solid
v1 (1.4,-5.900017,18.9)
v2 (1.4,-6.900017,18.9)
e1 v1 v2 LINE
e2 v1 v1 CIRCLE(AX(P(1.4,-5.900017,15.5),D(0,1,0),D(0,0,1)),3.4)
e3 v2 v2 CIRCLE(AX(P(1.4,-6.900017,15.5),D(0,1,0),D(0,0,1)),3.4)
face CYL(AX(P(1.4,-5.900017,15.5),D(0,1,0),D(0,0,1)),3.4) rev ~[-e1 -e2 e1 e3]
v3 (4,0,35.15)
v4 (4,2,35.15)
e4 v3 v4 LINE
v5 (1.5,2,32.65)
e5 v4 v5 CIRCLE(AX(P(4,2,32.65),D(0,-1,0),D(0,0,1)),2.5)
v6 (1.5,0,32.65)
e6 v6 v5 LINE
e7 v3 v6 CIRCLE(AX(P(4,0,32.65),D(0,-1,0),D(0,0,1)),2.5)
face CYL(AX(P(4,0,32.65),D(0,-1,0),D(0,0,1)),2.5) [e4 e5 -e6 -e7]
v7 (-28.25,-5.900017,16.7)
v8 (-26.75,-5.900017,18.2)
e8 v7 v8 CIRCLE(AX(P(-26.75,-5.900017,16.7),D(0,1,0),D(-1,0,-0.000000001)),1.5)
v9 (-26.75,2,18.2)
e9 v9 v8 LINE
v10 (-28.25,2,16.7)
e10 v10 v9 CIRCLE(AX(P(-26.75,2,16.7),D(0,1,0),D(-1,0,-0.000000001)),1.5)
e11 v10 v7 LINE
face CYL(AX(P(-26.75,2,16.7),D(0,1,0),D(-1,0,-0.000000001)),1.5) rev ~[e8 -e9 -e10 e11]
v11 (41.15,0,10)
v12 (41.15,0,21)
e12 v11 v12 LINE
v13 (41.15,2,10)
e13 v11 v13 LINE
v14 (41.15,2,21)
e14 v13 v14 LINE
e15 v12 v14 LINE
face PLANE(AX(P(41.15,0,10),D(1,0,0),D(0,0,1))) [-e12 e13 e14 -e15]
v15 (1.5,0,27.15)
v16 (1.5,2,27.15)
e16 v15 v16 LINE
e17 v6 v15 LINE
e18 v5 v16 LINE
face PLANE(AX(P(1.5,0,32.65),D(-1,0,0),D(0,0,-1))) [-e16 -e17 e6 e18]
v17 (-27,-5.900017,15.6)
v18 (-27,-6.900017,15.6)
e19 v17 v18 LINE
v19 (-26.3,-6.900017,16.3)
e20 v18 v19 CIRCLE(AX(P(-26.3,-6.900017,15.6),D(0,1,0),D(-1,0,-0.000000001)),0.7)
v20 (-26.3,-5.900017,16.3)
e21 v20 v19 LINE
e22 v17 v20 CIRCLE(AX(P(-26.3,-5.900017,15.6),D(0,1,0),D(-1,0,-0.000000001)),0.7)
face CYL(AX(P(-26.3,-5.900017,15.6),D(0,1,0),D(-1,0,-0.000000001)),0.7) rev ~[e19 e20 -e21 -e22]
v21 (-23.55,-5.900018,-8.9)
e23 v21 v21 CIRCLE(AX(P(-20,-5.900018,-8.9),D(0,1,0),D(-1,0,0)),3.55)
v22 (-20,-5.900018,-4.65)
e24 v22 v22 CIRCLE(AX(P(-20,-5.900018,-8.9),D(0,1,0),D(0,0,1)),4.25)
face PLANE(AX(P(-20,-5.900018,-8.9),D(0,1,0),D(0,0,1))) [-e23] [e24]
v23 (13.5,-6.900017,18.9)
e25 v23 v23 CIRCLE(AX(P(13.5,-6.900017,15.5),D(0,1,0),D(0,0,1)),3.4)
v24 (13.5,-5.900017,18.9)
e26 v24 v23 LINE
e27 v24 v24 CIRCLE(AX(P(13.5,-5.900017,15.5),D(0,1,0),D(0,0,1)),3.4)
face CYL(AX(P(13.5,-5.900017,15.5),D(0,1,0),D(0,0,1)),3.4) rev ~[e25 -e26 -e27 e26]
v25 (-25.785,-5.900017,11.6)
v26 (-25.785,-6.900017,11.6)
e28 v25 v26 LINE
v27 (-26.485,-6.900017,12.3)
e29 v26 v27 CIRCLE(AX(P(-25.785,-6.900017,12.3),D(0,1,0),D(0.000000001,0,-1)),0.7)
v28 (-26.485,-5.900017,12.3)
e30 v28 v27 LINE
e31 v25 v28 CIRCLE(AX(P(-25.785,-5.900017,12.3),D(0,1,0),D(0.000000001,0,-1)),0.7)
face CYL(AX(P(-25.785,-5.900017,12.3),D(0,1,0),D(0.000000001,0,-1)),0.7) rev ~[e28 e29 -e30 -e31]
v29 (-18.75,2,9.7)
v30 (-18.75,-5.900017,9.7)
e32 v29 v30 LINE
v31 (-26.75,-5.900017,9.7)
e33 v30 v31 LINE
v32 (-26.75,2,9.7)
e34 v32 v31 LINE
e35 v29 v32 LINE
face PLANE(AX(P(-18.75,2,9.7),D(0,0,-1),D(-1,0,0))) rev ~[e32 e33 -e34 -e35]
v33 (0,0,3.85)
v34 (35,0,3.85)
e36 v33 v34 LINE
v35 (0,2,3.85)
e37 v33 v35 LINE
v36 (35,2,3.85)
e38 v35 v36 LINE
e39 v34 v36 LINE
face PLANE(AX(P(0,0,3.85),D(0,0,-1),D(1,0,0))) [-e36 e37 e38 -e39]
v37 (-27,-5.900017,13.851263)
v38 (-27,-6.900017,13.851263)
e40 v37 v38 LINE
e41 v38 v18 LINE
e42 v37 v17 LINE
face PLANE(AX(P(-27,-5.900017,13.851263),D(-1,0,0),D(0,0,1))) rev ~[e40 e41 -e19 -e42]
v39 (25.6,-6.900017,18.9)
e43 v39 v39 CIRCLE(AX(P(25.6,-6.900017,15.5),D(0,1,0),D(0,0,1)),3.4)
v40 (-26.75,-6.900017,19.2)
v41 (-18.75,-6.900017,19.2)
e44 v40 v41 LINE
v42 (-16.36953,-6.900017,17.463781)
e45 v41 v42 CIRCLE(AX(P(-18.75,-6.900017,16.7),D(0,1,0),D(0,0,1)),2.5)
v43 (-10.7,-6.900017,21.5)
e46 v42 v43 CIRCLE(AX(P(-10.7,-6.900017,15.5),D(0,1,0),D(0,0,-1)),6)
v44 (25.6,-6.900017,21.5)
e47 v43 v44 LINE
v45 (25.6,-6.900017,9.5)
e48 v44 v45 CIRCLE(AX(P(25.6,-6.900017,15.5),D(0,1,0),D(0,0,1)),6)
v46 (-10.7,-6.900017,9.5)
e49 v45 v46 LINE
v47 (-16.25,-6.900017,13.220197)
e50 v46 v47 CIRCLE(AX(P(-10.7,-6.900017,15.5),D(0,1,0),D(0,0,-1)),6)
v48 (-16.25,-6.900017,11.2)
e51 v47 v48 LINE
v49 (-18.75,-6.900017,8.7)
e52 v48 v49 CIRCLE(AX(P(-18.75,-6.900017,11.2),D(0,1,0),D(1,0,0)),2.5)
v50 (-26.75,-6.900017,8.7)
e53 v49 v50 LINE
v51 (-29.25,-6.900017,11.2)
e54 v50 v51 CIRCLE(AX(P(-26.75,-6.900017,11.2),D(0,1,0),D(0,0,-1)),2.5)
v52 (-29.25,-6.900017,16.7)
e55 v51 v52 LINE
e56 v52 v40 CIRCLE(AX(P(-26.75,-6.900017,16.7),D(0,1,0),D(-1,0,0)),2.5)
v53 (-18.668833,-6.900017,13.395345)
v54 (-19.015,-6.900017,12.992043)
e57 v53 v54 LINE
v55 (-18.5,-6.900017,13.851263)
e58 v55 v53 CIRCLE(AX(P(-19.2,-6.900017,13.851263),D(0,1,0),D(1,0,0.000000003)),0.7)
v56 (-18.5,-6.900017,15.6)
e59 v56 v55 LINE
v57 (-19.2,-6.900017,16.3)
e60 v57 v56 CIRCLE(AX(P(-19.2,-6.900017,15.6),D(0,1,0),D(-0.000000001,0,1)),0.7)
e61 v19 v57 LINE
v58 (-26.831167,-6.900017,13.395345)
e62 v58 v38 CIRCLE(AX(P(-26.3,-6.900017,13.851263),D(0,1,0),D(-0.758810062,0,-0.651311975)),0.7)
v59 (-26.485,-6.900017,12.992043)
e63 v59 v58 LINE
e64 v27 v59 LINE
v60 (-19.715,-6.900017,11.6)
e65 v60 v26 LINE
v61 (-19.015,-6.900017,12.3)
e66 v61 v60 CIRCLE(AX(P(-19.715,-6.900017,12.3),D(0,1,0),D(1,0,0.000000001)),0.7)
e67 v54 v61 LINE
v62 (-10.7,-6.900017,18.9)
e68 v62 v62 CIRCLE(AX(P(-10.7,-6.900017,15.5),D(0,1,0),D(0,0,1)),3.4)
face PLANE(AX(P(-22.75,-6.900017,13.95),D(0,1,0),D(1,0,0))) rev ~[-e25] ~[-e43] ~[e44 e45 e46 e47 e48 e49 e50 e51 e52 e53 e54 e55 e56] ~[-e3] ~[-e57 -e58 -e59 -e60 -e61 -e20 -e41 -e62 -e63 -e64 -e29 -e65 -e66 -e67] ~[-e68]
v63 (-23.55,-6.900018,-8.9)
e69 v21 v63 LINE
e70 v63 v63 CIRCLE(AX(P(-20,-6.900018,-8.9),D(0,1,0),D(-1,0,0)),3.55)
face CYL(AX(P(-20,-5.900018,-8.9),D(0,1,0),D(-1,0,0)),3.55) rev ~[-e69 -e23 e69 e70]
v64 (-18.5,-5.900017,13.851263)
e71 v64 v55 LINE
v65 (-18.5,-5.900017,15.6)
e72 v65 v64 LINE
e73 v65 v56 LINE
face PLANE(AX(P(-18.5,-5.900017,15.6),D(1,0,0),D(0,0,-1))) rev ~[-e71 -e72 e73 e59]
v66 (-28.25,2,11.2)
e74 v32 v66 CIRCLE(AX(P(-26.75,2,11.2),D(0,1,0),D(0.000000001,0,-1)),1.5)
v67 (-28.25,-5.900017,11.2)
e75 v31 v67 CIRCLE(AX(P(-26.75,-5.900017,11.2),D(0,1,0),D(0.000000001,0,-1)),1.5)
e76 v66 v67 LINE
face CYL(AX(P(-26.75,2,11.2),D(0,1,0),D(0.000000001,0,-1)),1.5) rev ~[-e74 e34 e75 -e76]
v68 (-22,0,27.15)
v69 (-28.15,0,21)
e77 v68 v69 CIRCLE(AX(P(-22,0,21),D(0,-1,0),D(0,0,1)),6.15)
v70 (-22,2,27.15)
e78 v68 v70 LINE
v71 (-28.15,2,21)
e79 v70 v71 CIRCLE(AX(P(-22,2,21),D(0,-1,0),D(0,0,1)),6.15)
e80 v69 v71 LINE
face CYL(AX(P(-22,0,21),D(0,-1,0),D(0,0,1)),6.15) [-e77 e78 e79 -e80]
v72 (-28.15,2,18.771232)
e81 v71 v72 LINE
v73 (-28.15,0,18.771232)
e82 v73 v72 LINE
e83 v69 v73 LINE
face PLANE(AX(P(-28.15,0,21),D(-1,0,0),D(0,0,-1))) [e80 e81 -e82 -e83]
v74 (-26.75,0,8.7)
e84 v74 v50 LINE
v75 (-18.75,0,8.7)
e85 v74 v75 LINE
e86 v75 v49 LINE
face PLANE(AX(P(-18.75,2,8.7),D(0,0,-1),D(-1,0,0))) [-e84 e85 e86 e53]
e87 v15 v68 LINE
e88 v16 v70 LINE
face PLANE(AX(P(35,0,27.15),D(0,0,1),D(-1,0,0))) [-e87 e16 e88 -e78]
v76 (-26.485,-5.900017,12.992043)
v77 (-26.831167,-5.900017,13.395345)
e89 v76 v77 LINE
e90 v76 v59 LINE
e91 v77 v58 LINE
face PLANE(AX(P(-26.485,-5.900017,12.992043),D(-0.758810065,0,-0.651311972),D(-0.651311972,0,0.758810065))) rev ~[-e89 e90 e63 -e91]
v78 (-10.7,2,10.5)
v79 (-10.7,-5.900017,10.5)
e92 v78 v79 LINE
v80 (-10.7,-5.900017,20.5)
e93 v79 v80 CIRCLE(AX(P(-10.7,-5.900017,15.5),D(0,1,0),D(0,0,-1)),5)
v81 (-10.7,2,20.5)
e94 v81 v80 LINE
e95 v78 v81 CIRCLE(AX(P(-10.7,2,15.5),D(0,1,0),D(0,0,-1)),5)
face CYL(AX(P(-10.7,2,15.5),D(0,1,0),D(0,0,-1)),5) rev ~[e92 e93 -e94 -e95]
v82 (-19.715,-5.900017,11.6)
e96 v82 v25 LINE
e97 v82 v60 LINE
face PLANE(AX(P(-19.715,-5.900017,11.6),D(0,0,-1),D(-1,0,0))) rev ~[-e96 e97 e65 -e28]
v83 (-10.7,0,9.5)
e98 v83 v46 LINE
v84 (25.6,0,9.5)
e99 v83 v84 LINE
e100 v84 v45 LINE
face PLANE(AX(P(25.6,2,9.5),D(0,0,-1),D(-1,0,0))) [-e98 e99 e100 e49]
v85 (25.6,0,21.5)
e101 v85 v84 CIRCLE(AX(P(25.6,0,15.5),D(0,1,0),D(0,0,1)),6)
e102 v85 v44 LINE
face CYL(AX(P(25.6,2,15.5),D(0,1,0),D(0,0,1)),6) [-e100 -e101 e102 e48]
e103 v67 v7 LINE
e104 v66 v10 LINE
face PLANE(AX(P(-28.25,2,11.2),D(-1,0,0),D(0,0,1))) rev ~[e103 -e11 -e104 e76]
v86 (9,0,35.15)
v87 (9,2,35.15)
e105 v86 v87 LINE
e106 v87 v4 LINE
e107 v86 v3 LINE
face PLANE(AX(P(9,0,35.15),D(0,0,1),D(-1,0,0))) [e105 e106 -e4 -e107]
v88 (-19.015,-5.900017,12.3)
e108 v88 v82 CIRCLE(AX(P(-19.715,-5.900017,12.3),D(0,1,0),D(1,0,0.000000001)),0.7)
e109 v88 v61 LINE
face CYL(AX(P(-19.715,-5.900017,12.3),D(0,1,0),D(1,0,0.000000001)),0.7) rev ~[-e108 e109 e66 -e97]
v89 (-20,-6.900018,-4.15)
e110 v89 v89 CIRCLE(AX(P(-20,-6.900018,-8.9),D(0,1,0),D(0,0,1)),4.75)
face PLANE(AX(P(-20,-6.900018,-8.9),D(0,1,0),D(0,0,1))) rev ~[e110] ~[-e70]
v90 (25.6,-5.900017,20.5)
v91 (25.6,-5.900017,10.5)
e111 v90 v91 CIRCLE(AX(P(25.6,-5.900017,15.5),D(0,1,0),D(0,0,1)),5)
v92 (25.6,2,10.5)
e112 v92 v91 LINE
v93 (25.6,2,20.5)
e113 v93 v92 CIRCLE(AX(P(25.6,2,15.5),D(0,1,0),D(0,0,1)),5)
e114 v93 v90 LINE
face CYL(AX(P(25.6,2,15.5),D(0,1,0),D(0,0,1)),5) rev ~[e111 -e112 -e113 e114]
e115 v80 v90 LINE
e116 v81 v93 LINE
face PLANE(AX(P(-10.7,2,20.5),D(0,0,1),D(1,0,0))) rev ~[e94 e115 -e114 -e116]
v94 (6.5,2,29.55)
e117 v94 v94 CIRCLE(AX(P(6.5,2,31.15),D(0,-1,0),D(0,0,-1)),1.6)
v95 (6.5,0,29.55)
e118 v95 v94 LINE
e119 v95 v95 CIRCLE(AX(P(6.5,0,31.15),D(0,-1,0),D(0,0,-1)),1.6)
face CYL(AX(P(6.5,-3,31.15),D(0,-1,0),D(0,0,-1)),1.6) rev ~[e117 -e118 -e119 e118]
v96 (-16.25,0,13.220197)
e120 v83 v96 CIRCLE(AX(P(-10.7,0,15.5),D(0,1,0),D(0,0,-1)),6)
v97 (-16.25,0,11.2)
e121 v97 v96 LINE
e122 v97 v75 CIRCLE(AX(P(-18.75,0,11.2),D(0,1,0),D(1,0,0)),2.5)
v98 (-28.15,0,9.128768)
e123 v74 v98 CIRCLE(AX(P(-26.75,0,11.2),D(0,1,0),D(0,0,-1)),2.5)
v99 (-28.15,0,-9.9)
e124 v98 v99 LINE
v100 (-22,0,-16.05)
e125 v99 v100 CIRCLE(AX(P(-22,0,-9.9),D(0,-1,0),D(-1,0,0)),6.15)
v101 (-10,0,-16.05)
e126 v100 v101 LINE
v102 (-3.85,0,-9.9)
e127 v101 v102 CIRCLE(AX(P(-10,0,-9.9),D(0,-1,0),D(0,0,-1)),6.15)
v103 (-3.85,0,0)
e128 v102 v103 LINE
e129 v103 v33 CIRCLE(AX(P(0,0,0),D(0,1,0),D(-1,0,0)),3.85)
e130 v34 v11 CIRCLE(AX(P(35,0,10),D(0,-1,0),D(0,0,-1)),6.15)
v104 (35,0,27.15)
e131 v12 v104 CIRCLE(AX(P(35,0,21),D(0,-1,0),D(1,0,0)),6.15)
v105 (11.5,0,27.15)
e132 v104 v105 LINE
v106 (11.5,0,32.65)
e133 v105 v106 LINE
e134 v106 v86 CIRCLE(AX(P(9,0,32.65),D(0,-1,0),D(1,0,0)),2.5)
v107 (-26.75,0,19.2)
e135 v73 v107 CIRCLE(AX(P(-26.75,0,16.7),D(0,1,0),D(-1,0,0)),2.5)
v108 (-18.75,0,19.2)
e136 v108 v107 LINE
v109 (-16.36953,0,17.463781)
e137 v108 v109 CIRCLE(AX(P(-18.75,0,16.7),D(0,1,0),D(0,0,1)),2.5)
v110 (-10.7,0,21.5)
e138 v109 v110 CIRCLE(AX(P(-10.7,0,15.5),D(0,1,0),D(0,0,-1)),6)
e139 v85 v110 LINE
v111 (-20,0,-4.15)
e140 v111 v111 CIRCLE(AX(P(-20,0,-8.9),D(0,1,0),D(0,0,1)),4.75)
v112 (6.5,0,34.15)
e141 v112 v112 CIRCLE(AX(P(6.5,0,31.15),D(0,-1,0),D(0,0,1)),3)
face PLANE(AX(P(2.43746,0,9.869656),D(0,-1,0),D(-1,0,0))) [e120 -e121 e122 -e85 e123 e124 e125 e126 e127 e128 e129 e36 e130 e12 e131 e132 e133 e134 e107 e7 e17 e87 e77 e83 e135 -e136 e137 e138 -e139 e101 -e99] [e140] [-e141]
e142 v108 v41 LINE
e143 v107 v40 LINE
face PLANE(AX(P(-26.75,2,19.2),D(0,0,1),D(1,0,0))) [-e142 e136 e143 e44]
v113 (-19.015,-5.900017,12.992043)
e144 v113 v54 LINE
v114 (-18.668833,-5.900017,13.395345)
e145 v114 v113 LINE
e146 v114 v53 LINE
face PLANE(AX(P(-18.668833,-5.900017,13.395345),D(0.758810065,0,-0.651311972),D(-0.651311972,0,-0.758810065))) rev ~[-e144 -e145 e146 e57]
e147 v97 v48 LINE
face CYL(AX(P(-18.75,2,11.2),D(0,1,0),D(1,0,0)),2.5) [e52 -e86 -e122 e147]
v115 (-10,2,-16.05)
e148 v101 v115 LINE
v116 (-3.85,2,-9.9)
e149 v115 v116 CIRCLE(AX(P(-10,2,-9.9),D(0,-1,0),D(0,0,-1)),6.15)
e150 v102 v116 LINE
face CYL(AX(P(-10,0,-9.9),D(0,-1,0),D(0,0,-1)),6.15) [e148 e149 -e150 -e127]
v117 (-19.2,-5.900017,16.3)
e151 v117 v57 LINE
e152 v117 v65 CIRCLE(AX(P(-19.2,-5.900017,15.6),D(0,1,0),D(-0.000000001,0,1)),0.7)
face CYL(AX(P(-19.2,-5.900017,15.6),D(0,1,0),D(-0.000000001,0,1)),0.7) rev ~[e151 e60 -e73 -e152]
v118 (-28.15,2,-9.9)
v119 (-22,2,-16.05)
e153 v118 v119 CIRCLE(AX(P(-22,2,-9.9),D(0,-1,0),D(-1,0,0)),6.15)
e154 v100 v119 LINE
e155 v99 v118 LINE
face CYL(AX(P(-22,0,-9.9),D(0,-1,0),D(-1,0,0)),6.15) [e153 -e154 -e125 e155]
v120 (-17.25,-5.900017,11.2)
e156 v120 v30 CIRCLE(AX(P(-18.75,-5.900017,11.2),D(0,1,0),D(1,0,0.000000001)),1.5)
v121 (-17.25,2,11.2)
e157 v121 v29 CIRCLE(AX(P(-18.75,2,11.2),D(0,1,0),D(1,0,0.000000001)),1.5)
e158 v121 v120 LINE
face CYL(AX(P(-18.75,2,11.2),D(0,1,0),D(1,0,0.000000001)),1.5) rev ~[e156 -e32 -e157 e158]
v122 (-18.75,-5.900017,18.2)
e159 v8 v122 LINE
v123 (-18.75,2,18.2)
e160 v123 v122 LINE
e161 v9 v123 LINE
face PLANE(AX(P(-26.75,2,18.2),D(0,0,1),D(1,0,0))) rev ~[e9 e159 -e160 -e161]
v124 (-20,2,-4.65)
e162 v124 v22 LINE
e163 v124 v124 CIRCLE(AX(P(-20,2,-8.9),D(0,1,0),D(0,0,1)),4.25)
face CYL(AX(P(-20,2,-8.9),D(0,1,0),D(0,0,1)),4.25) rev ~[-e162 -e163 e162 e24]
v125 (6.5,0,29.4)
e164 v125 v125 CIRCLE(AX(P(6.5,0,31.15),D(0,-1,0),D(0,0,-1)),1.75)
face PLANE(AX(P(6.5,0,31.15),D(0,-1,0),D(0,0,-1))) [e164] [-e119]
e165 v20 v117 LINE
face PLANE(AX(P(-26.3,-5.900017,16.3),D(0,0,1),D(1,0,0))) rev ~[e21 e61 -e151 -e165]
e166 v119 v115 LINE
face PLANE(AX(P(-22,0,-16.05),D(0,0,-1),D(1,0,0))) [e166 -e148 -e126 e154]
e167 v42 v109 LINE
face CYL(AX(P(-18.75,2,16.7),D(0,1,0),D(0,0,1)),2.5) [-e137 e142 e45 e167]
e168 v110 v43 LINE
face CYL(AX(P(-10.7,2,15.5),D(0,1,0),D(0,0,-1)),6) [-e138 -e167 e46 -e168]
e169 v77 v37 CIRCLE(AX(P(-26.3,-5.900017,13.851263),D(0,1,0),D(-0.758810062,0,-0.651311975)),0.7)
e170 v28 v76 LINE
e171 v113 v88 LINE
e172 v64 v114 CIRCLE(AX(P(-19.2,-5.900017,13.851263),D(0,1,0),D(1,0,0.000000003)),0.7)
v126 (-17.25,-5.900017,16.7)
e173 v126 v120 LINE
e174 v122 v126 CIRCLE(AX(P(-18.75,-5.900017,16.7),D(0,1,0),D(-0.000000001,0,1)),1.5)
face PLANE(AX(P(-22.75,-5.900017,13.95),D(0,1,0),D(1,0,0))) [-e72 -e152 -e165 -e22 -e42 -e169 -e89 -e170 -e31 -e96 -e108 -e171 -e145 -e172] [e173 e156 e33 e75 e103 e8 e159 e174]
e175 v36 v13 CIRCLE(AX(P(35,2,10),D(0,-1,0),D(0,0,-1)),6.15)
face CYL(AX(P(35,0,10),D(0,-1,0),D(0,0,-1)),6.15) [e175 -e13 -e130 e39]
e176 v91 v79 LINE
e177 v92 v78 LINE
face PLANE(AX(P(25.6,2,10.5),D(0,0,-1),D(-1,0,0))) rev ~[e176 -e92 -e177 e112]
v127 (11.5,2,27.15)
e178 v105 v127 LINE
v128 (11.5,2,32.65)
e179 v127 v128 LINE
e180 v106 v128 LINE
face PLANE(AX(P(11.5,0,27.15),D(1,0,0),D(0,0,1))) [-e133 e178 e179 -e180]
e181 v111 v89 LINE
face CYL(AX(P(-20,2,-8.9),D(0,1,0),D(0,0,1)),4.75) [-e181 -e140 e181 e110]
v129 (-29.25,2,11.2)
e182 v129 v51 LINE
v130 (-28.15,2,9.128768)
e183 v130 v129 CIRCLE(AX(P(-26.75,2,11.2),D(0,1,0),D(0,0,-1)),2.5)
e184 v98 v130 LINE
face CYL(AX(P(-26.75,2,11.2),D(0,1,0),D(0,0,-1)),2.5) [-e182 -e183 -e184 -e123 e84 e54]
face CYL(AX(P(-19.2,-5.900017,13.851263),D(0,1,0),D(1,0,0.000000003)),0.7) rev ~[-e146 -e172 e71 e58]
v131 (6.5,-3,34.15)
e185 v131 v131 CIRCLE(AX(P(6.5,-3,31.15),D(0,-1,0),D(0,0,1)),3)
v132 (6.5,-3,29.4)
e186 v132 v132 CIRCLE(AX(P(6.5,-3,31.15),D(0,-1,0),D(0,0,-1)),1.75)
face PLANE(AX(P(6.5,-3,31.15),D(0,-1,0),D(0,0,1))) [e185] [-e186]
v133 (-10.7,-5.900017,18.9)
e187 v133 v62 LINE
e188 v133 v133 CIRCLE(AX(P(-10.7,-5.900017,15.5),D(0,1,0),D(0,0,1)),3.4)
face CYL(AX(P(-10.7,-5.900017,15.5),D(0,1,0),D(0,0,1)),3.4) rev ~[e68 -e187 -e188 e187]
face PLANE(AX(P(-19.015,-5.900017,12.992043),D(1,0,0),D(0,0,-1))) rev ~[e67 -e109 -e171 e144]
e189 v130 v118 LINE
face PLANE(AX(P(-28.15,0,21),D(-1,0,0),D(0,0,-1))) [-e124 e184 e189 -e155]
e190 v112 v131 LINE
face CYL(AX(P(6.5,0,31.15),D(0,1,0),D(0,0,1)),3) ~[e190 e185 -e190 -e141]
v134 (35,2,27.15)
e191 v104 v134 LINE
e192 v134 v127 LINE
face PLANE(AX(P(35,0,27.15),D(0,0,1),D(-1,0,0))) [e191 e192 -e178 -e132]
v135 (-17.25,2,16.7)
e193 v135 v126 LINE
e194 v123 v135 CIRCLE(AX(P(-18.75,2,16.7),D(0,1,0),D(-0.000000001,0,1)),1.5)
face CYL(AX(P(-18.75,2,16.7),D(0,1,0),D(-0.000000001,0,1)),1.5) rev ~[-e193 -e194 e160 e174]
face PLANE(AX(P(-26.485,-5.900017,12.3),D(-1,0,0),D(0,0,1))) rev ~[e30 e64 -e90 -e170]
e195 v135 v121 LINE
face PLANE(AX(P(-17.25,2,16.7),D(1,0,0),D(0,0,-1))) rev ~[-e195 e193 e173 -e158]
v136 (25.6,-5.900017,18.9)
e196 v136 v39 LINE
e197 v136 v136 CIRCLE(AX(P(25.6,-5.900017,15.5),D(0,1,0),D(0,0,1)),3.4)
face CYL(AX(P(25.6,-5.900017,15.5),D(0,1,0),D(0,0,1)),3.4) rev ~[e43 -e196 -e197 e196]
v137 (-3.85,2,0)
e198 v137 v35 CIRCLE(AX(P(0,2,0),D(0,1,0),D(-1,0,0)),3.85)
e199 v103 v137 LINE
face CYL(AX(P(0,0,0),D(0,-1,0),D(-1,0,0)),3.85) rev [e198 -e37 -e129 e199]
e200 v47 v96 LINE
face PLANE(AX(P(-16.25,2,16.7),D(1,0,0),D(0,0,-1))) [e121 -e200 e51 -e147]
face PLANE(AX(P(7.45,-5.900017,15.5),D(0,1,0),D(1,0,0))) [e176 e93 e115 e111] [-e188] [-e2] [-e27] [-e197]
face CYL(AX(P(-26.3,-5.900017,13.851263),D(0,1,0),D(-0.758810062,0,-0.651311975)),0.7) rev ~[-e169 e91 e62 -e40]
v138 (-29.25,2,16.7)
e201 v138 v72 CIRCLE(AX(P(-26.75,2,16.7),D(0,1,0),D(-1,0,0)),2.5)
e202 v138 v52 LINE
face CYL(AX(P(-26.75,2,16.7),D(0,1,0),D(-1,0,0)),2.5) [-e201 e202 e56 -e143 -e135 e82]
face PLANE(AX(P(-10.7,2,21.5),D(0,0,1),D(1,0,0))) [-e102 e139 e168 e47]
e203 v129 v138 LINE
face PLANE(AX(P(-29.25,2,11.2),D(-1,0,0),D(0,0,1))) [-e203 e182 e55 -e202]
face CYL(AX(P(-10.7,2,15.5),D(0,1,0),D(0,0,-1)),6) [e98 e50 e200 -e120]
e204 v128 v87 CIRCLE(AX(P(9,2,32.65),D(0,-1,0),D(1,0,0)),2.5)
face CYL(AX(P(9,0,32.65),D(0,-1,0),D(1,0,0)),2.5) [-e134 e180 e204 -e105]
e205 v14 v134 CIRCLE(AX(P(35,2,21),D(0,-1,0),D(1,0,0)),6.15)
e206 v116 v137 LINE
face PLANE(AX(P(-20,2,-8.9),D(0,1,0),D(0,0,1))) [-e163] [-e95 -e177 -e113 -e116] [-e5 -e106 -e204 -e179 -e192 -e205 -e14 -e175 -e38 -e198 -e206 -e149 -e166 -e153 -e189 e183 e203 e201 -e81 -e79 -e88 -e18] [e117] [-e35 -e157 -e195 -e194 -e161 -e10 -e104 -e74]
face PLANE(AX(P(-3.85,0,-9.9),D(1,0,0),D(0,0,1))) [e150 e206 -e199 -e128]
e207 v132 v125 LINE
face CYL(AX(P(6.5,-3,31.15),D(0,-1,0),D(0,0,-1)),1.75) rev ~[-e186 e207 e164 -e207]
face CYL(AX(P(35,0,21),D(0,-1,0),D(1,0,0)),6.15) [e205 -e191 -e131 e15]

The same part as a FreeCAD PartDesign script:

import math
import FreeCAD as App
import Part
import Sketcher
Q = App.Units.Quantity

doc = App.newDocument("Part")
params = doc.addObject("Spreadsheet::Sheet", "Params")
for row, (alias, value) in enumerate([
    ("sketch1_width", "57 mm"),
    ("sketch1_width2", "35 mm"),
    ("sketch1_width3", "12 mm"),
    ("sketch1_height", "11 mm"),
    ("sketch1_radius", "6.15 mm"),
    ("pad1_length", "2 mm"),
    ("sketch2_radius", "6 mm"),
    ("sketch2_width", "36.3 mm"),
    ("pad2_length", "8.900017 mm"),
    ("sketch3_radius", "2.5 mm"),
    ("sketch3_width", "8 mm"),
    ("sketch3_height", "5.5 mm"),
    ("pad3_length", "8.900017 mm"),
    ("sketch4_radius", "5 mm"),
    ("sketch4_width", "36.3 mm"),
    ("pocket1_length", "7.900017 mm"),
    ("sketch5_radius", "1.5 mm"),
    ("sketch5_width", "8 mm"),
    ("sketch5_height", "5.5 mm"),
    ("pocket2_length", "7.900017 mm"),
    ("sketch6_diameter", "9.5 mm"),
    ("pad4_length", "8.900018 mm"),
    ("sketch7_diameter", "8.5 mm"),
    ("pocket3_length", "7.900018 mm"),
    ("sketch8_diameter", "6.8 mm"),
    ("sketch9_diameter", "7.1 mm"),
    ("sketch10_radius", "0.7 mm"),
    ("sketch10_width", "7.1 mm"),
    ("sketch10_width2", "6.07 mm"),
    ("sketch11_radius", "2.5 mm"),
    ("sketch11_width", "10 mm"),
    ("sketch11_height", "5.5 mm"),
    ("pad5_length", "2 mm"),
    ("sketch12_diameter", "6 mm"),
    ("pad6_length", "3 mm"),
    ("sketch13_diameter", "3.2 mm"),
    ("sketch14_diameter", "3.5 mm"),
    ("pocket8_length", "3 mm"),
], start=1):
    params.set(f"A{row}", alias)
    params.set(f"B{row}", "=" + value)
    params.setAlias(f"B{row}", alias)

body = doc.addObject("PartDesign::Body", "Body")

sketch1 = body.newObject("Sketcher::SketchObject", "Sketch")
sketch1.AttachmentSupport = (doc.getObject("XZ_Plane"), [""])
sketch1.MapMode = "FlatFace"
sketch1.addGeometry([
    Part.LineSegment(App.Vector(-22, 27.15, 0), App.Vector(35, 27.15, 0)),
    Part.ArcOfCircle(Part.Circle(App.Vector(35, 21, 0), App.Vector(0, 0, 1), 6.15), math.radians(0), math.radians(90)),
    Part.LineSegment(App.Vector(41.15, 21, 0), App.Vector(41.15, 10, 0)),
    Part.ArcOfCircle(Part.Circle(App.Vector(35, 10, 0), App.Vector(0, 0, 1), 6.15), math.radians(-90), math.radians(0)),
    Part.LineSegment(App.Vector(35, 3.85, 0), App.Vector(0, 3.85, 0)),
    Part.ArcOfCircle(Part.Circle(App.Vector(0, 0, 0), App.Vector(0, 0, 1), 3.85), math.radians(90), math.radians(180)),
    Part.LineSegment(App.Vector(-3.85, 0, 0), App.Vector(-3.85, -9.9, 0)),
    Part.ArcOfCircle(Part.Circle(App.Vector(-10, -9.9, 0), App.Vector(0, 0, 1), 6.15), math.radians(-90), math.radians(0)),
    Part.LineSegment(App.Vector(-10, -16.05, 0), App.Vector(-22, -16.05, 0)),
    Part.ArcOfCircle(Part.Circle(App.Vector(-22, -9.9, 0), App.Vector(0, 0, 1), 6.15), math.radians(-180), math.radians(-90)),
    Part.LineSegment(App.Vector(-28.15, -9.9, 0), App.Vector(-28.15, 21, 0)),
    Part.ArcOfCircle(Part.Circle(App.Vector(-22, 21, 0), App.Vector(0, 0, 1), 6.15), math.radians(90), math.radians(180)),
], False)
sketch1.addConstraint([
    Sketcher.Constraint("Tangent", 0, 2, 1, 2),
    Sketcher.Constraint("Tangent", 1, 1, 2, 1),
    Sketcher.Constraint("Tangent", 2, 2, 3, 2),
    Sketcher.Constraint("Tangent", 3, 1, 4, 1),
    Sketcher.Constraint("Tangent", 4, 2, 5, 1),
    Sketcher.Constraint("Tangent", 5, 2, 6, 1),
    Sketcher.Constraint("Tangent", 6, 2, 7, 2),
    Sketcher.Constraint("Tangent", 7, 1, 8, 1),
    Sketcher.Constraint("Tangent", 8, 2, 9, 2),
    Sketcher.Constraint("Tangent", 9, 1, 10, 1),
    Sketcher.Constraint("Tangent", 10, 2, 11, 2),
    Sketcher.Constraint("Tangent", 11, 1, 0, 1),
    Sketcher.Constraint("Horizontal", 0),
    Sketcher.Constraint("Vertical", 2),
    Sketcher.Constraint("Horizontal", 4),
    Sketcher.Constraint("Vertical", 6),
    Sketcher.Constraint("Horizontal", 8),
    Sketcher.Constraint("Vertical", 10),
    Sketcher.Constraint("Coincident", 5, 3, -1, 1),
    Sketcher.Constraint("Equal", 1, 3),
    Sketcher.Constraint("Equal", 3, 7),
    Sketcher.Constraint("Equal", 7, 9),
    Sketcher.Constraint("Equal", 9, 11),
    Sketcher.Constraint("DistanceX", 0, 1, 0, 2, Q("57 mm")),
    Sketcher.Constraint("DistanceX", 4, 2, 4, 1, Q("35 mm")),
    Sketcher.Constraint("DistanceX", 8, 2, 8, 1, Q("12 mm")),
    Sketcher.Constraint("DistanceY", 2, 2, 2, 1, Q("11 mm")),
    Sketcher.Constraint("Radius", 1, Q("6.15 mm")),
    Sketcher.Constraint("DistanceY", 6, 2, 6, 1, Q("9.9 mm")),
])
sketch1.setExpression("Constraints[23]", "Params.sketch1_width")
sketch1.setExpression("Constraints[24]", "Params.sketch1_width2")
sketch1.setExpression("Constraints[25]", "Params.sketch1_width3")
sketch1.setExpression("Constraints[26]", "Params.sketch1_height")
sketch1.setExpression("Constraints[27]", "Params.sketch1_radius")
pad1 = body.newObject("PartDesign::Pad", "Pad")
pad1.Profile = sketch1
pad1.setExpression("Length", "Params.pad1_length")
pad1.Reversed = True

sketch2 = body.newObject("Sketcher::SketchObject", "Sketch001")
sketch2.AttachmentSupport = (doc.getObject("XZ_Plane"), [""])
sketch2.MapMode = "FlatFace"
sketch2.AttachmentOffset = App.Placement(App.Vector(0, 0, -2), App.Rotation())
sketch2.addGeometry([
    Part.LineSegment(App.Vector(-10.7, 21.5, 0), App.Vector(25.6, 21.5, 0)),
    Part.ArcOfCircle(Part.Circle(App.Vector(25.6, 15.5, 0), App.Vector(0, 0, 1), 6), math.radians(-90), math.radians(90)),
    Part.LineSegment(App.Vector(25.6, 9.5, 0), App.Vector(-10.7, 9.5, 0)),
    Part.ArcOfCircle(Part.Circle(App.Vector(-10.7, 15.5, 0), App.Vector(0, 0, 1), 6), math.radians(90), math.radians(270)),
], False)
sketch2.addConstraint([
    Sketcher.Constraint("Tangent", 0, 2, 1, 2),
    Sketcher.Constraint("Tangent", 1, 1, 2, 1),
    Sketcher.Constraint("Tangent", 2, 2, 3, 2),
    Sketcher.Constraint("Tangent", 3, 1, 0, 1),
    Sketcher.Constraint("Horizontal", 0),
    Sketcher.Constraint("Horizontal", 2),
    Sketcher.Constraint("Radius", 1, Q("6 mm")),
    Sketcher.Constraint("DistanceX", 0, 1, 0, 2, Q("36.3 mm")),
    Sketcher.Constraint("DistanceX", -1, 1, 1, 3, Q("25.6 mm")),
    Sketcher.Constraint("DistanceY", -1, 1, 1, 3, Q("15.5 mm")),
])
sketch2.setExpression("Constraints[6]", "Params.sketch2_radius")
sketch2.setExpression("Constraints[7]", "Params.sketch2_width")
pad2 = body.newObject("PartDesign::Pad", "Pad001")
pad2.Profile = sketch2
pad2.setExpression("Length", "Params.pad2_length")

sketch3 = body.newObject("Sketcher::SketchObject", "Sketch002")
sketch3.AttachmentSupport = (doc.getObject("XZ_Plane"), [""])
sketch3.MapMode = "FlatFace"
sketch3.AttachmentOffset = App.Placement(App.Vector(0, 0, -2), App.Rotation())
sketch3.addGeometry([
    Part.LineSegment(App.Vector(-26.75, 19.2, 0), App.Vector(-18.75, 19.2, 0)),
    Part.ArcOfCircle(Part.Circle(App.Vector(-18.75, 16.7, 0), App.Vector(0, 0, 1), 2.5), math.radians(0), math.radians(90)),
    Part.LineSegment(App.Vector(-16.25, 16.7, 0), App.Vector(-16.25, 11.2, 0)),
    Part.ArcOfCircle(Part.Circle(App.Vector(-18.75, 11.2, 0), App.Vector(0, 0, 1), 2.5), math.radians(-90), math.radians(0)),
    Part.LineSegment(App.Vector(-18.75, 8.7, 0), App.Vector(-26.75, 8.7, 0)),
    Part.ArcOfCircle(Part.Circle(App.Vector(-26.75, 11.2, 0), App.Vector(0, 0, 1), 2.5), math.radians(180), math.radians(270)),
    Part.LineSegment(App.Vector(-29.25, 11.2, 0), App.Vector(-29.25, 16.7, 0)),
    Part.ArcOfCircle(Part.Circle(App.Vector(-26.75, 16.7, 0), App.Vector(0, 0, 1), 2.5), math.radians(90), math.radians(180)),
], False)
sketch3.addConstraint([
    Sketcher.Constraint("Tangent", 0, 2, 1, 2),
    Sketcher.Constraint("Tangent", 1, 1, 2, 1),
    Sketcher.Constraint("Tangent", 2, 2, 3, 2),
    Sketcher.Constraint("Tangent", 3, 1, 4, 1),
    Sketcher.Constraint("Tangent", 4, 2, 5, 2),
    Sketcher.Constraint("Tangent", 5, 1, 6, 1),
    Sketcher.Constraint("Tangent", 6, 2, 7, 2),
    Sketcher.Constraint("Tangent", 7, 1, 0, 1),
    Sketcher.Constraint("Horizontal", 0),
    Sketcher.Constraint("Vertical", 2),
    Sketcher.Constraint("Horizontal", 4),
    Sketcher.Constraint("Vertical", 6),
    Sketcher.Constraint("Equal", 1, 3),
    Sketcher.Constraint("Equal", 3, 5),
    Sketcher.Constraint("Equal", 5, 7),
    Sketcher.Constraint("Radius", 1, Q("2.5 mm")),
    Sketcher.Constraint("DistanceX", 0, 1, 0, 2, Q("8 mm")),
    Sketcher.Constraint("DistanceY", 2, 2, 2, 1, Q("5.5 mm")),
    Sketcher.Constraint("DistanceY", -1, 1, 1, 3, Q("16.7 mm")),
    Sketcher.Constraint("DistanceX", 1, 3, -1, 1, Q("18.75 mm")),
])
sketch3.setExpression("Constraints[15]", "Params.sketch3_radius")
sketch3.setExpression("Constraints[16]", "Params.sketch3_width")
sketch3.setExpression("Constraints[17]", "Params.sketch3_height")
pad3 = body.newObject("PartDesign::Pad", "Pad002")
pad3.Profile = sketch3
pad3.setExpression("Length", "Params.pad3_length")

sketch4 = body.newObject("Sketcher::SketchObject", "Sketch003")
sketch4.AttachmentSupport = (doc.getObject("XZ_Plane"), [""])
sketch4.MapMode = "FlatFace"
sketch4.AttachmentOffset = App.Placement(App.Vector(0, 0, -2), App.Rotation())
sketch4.addGeometry([
    Part.LineSegment(App.Vector(25.6, 10.5, 0), App.Vector(-10.7, 10.5, 0)),
    Part.ArcOfCircle(Part.Circle(App.Vector(-10.7, 15.5, 0), App.Vector(0, 0, 1), 5), math.radians(90), math.radians(270)),
    Part.LineSegment(App.Vector(-10.7, 20.5, 0), App.Vector(25.6, 20.5, 0)),
    Part.ArcOfCircle(Part.Circle(App.Vector(25.6, 15.5, 0), App.Vector(0, 0, 1), 5), math.radians(-90), math.radians(90)),
], False)
sketch4.addConstraint([
    Sketcher.Constraint("Tangent", 0, 2, 1, 2),
    Sketcher.Constraint("Tangent", 1, 1, 2, 1),
    Sketcher.Constraint("Tangent", 2, 2, 3, 2),
    Sketcher.Constraint("Tangent", 3, 1, 0, 1),
    Sketcher.Constraint("Horizontal", 0),
    Sketcher.Constraint("Horizontal", 2),
    Sketcher.Constraint("Radius", 1, Q("5 mm")),
    Sketcher.Constraint("DistanceX", 0, 2, 0, 1, Q("36.3 mm")),
    Sketcher.Constraint("DistanceX", 1, 3, -1, 1, Q("10.7 mm")),
    Sketcher.Constraint("DistanceY", -1, 1, 1, 3, Q("15.5 mm")),
])
sketch4.setExpression("Constraints[6]", "Params.sketch4_radius")
sketch4.setExpression("Constraints[7]", "Params.sketch4_width")
pocket1 = body.newObject("PartDesign::Pocket", "Pocket")
pocket1.Profile = sketch4
pocket1.setExpression("Length", "Params.pocket1_length")
pocket1.Reversed = True

sketch5 = body.newObject("Sketcher::SketchObject", "Sketch004")
sketch5.AttachmentSupport = (doc.getObject("XZ_Plane"), [""])
sketch5.MapMode = "FlatFace"
sketch5.AttachmentOffset = App.Placement(App.Vector(0, 0, -2), App.Rotation())
sketch5.addGeometry([
    Part.LineSegment(App.Vector(-17.25, 16.7, 0), App.Vector(-17.25, 11.2, 0)),
    Part.ArcOfCircle(Part.Circle(App.Vector(-18.75, 11.2, 0), App.Vector(0, 0, 1), 1.5), math.radians(-90), math.radians(0)),
    Part.LineSegment(App.Vector(-18.75, 9.7, 0), App.Vector(-26.75, 9.7, 0)),
    Part.ArcOfCircle(Part.Circle(App.Vector(-26.75, 11.2, 0), App.Vector(0, 0, 1), 1.5), math.radians(180), math.radians(270)),
    Part.LineSegment(App.Vector(-28.25, 11.2, 0), App.Vector(-28.25, 16.7, 0)),
    Part.ArcOfCircle(Part.Circle(App.Vector(-26.75, 16.7, 0), App.Vector(0, 0, 1), 1.5), math.radians(90), math.radians(180)),
    Part.LineSegment(App.Vector(-26.75, 18.2, 0), App.Vector(-18.75, 18.2, 0)),
    Part.ArcOfCircle(Part.Circle(App.Vector(-18.75, 16.7, 0), App.Vector(0, 0, 1), 1.5), math.radians(0), math.radians(90)),
], False)
sketch5.addConstraint([
    Sketcher.Constraint("Tangent", 0, 2, 1, 2),
    Sketcher.Constraint("Tangent", 1, 1, 2, 1),
    Sketcher.Constraint("Tangent", 2, 2, 3, 2),
    Sketcher.Constraint("Tangent", 3, 1, 4, 1),
    Sketcher.Constraint("Tangent", 4, 2, 5, 2),
    Sketcher.Constraint("Tangent", 5, 1, 6, 1),
    Sketcher.Constraint("Tangent", 6, 2, 7, 2),
    Sketcher.Constraint("Tangent", 7, 1, 0, 1),
    Sketcher.Constraint("Vertical", 0),
    Sketcher.Constraint("Horizontal", 2),
    Sketcher.Constraint("Vertical", 4),
    Sketcher.Constraint("Horizontal", 6),
    Sketcher.Constraint("Equal", 1, 3),
    Sketcher.Constraint("Equal", 3, 5),
    Sketcher.Constraint("Equal", 5, 7),
    Sketcher.Constraint("Radius", 1, Q("1.5 mm")),
    Sketcher.Constraint("DistanceX", 2, 2, 2, 1, Q("8 mm")),
    Sketcher.Constraint("DistanceY", 0, 2, 0, 1, Q("5.5 mm")),
    Sketcher.Constraint("DistanceY", -1, 1, 1, 3, Q("11.2 mm")),
    Sketcher.Constraint("DistanceX", 1, 3, -1, 1, Q("18.75 mm")),
])
sketch5.setExpression("Constraints[15]", "Params.sketch5_radius")
sketch5.setExpression("Constraints[16]", "Params.sketch5_width")
sketch5.setExpression("Constraints[17]", "Params.sketch5_height")
pocket2 = body.newObject("PartDesign::Pocket", "Pocket001")
pocket2.Profile = sketch5
pocket2.setExpression("Length", "Params.pocket2_length")
pocket2.Reversed = True

sketch6 = body.newObject("Sketcher::SketchObject", "Sketch005")
sketch6.AttachmentSupport = (doc.getObject("XZ_Plane"), [""])
sketch6.MapMode = "FlatFace"
sketch6.AttachmentOffset = App.Placement(App.Vector(0, 0, -2), App.Rotation())
sketch6.addGeometry(Part.Circle(App.Vector(-20, -8.9, 0), App.Vector(0, 0, 1), 4.75), False)
sketch6.addConstraint([
    Sketcher.Constraint("Diameter", 0, Q("9.5 mm")),
    Sketcher.Constraint("DistanceX", 0, 3, -1, 1, Q("20 mm")),
    Sketcher.Constraint("DistanceY", 0, 3, -1, 1, Q("8.9 mm")),
])
sketch6.setExpression("Constraints[0]", "Params.sketch6_diameter")
pad4 = body.newObject("PartDesign::Pad", "Pad003")
pad4.Profile = sketch6
pad4.setExpression("Length", "Params.pad4_length")

sketch7 = body.newObject("Sketcher::SketchObject", "Sketch006")
sketch7.AttachmentSupport = (doc.getObject("XZ_Plane"), [""])
sketch7.MapMode = "FlatFace"
sketch7.AttachmentOffset = App.Placement(App.Vector(0, 0, -2), App.Rotation())
sketch7.addGeometry(Part.Circle(App.Vector(-20, -8.9, 0), App.Vector(0, 0, 1), 4.25), False)
sketch7.addConstraint([
    Sketcher.Constraint("Diameter", 0, Q("8.5 mm")),
    Sketcher.Constraint("DistanceX", 0, 3, -1, 1, Q("20 mm")),
    Sketcher.Constraint("DistanceY", 0, 3, -1, 1, Q("8.9 mm")),
])
sketch7.setExpression("Constraints[0]", "Params.sketch7_diameter")
pocket3 = body.newObject("PartDesign::Pocket", "Pocket002")
pocket3.Profile = sketch7
pocket3.setExpression("Length", "Params.pocket3_length")
pocket3.Reversed = True

sketch8 = body.newObject("Sketcher::SketchObject", "Sketch007")
sketch8.AttachmentSupport = (doc.getObject("XZ_Plane"), [""])
sketch8.MapMode = "FlatFace"
sketch8.AttachmentOffset = App.Placement(App.Vector(0, 0, 5.900017), App.Rotation())
sketch8.addGeometry([
    Part.Circle(App.Vector(-10.7, 15.5, 0), App.Vector(0, 0, 1), 3.4),
    Part.Circle(App.Vector(1.4, 15.5, 0), App.Vector(0, 0, 1), 3.4),
    Part.Circle(App.Vector(13.5, 15.5, 0), App.Vector(0, 0, 1), 3.4),
    Part.Circle(App.Vector(25.6, 15.5, 0), App.Vector(0, 0, 1), 3.4),
], False)
sketch8.addConstraint([
    Sketcher.Constraint("Equal", 0, 1),
    Sketcher.Constraint("Equal", 1, 2),
    Sketcher.Constraint("Equal", 2, 3),
    Sketcher.Constraint("Horizontal", 0, 3, 1, 3),
    Sketcher.Constraint("Horizontal", 1, 3, 2, 3),
    Sketcher.Constraint("Horizontal", 2, 3, 3, 3),
    Sketcher.Constraint("Diameter", 0, Q("6.8 mm")),
    Sketcher.Constraint("DistanceX", 0, 3, -1, 1, Q("10.7 mm")),
    Sketcher.Constraint("DistanceY", -1, 1, 0, 3, Q("15.5 mm")),
    Sketcher.Constraint("DistanceX", -1, 1, 1, 3, Q("1.4 mm")),
    Sketcher.Constraint("DistanceX", -1, 1, 2, 3, Q("13.5 mm")),
    Sketcher.Constraint("DistanceX", -1, 1, 3, 3, Q("25.6 mm")),
])
sketch8.setExpression("Constraints[6]", "Params.sketch8_diameter")
pocket4 = body.newObject("PartDesign::Pocket", "Pocket003")
pocket4.Profile = sketch8
pocket4.Type = "ThroughAll"
pocket4.Reversed = True

sketch9 = body.newObject("Sketcher::SketchObject", "Sketch008")
sketch9.AttachmentSupport = (doc.getObject("XZ_Plane"), [""])
sketch9.MapMode = "FlatFace"
sketch9.AttachmentOffset = App.Placement(App.Vector(0, 0, 5.900018), App.Rotation())
sketch9.addGeometry(Part.Circle(App.Vector(-20, -8.9, 0), App.Vector(0, 0, 1), 3.55), False)
sketch9.addConstraint([
    Sketcher.Constraint("Diameter", 0, Q("7.1 mm")),
    Sketcher.Constraint("DistanceX", 0, 3, -1, 1, Q("20 mm")),
    Sketcher.Constraint("DistanceY", 0, 3, -1, 1, Q("8.9 mm")),
])
sketch9.setExpression("Constraints[0]", "Params.sketch9_diameter")
pocket5 = body.newObject("PartDesign::Pocket", "Pocket004")
pocket5.Profile = sketch9
pocket5.Type = "ThroughAll"
pocket5.Reversed = True

sketch10 = body.newObject("Sketcher::SketchObject", "Sketch009")
sketch10.AttachmentSupport = (doc.getObject("XZ_Plane"), [""])
sketch10.MapMode = "FlatFace"
sketch10.AttachmentOffset = App.Placement(App.Vector(0, 0, 5.900017), App.Rotation())
sketch10.addGeometry([
    Part.LineSegment(App.Vector(-27, 13.851263, 0), App.Vector(-27, 15.6, 0)),
    Part.ArcOfCircle(Part.Circle(App.Vector(-26.3, 15.6, 0), App.Vector(0, 0, 1), 0.7), math.radians(90), math.radians(180)),
    Part.LineSegment(App.Vector(-26.3, 16.3, 0), App.Vector(-19.2, 16.3, 0)),
    Part.ArcOfCircle(Part.Circle(App.Vector(-19.2, 15.6, 0), App.Vector(0, 0, 1), 0.7), math.radians(0), math.radians(90)),
    Part.LineSegment(App.Vector(-18.5, 15.6, 0), App.Vector(-18.5, 13.851263, 0)),
    Part.ArcOfCircle(Part.Circle(App.Vector(-19.2, 13.851263, 0), App.Vector(0, 0, 1), 0.7), math.radians(-40.640592), math.radians(0)),
    Part.LineSegment(App.Vector(-18.668833, 13.395345, 0), App.Vector(-19.015, 12.992043, 0)),
    Part.LineSegment(App.Vector(-19.015, 12.992043, 0), App.Vector(-19.015, 12.3, 0)),
    Part.ArcOfCircle(Part.Circle(App.Vector(-19.715, 12.3, 0), App.Vector(0, 0, 1), 0.7), math.radians(-90), math.radians(0)),
    Part.LineSegment(App.Vector(-19.715, 11.6, 0), App.Vector(-25.785, 11.6, 0)),
    Part.ArcOfCircle(Part.Circle(App.Vector(-25.785, 12.3, 0), App.Vector(0, 0, 1), 0.7), math.radians(180), math.radians(270)),
    Part.LineSegment(App.Vector(-26.485, 12.3, 0), App.Vector(-26.485, 12.992043, 0)),
    Part.LineSegment(App.Vector(-26.485, 12.992043, 0), App.Vector(-26.831167, 13.395345, 0)),
    Part.ArcOfCircle(Part.Circle(App.Vector(-26.3, 13.851263, 0), App.Vector(0, 0, 1), 0.7), math.radians(180), math.radians(220.640592)),
], False)
sketch10.addConstraint([
    Sketcher.Constraint("Tangent", 0, 2, 1, 2),
    Sketcher.Constraint("Tangent", 1, 1, 2, 1),
    Sketcher.Constraint("Tangent", 2, 2, 3, 2),
    Sketcher.Constraint("Tangent", 3, 1, 4, 1),
    Sketcher.Constraint("Tangent", 4, 2, 5, 2),
    Sketcher.Constraint("Tangent", 5, 1, 6, 1),
    Sketcher.Constraint("Coincident", 6, 2, 7, 1),
    Sketcher.Constraint("Tangent", 7, 2, 8, 2),
    Sketcher.Constraint("Tangent", 8, 1, 9, 1),
    Sketcher.Constraint("Tangent", 9, 2, 10, 2),
    Sketcher.Constraint("Tangent", 10, 1, 11, 1),
    Sketcher.Constraint("Coincident", 11, 2, 12, 1),
    Sketcher.Constraint("Tangent", 12, 2, 13, 2),
    Sketcher.Constraint("Tangent", 13, 1, 0, 1),
    Sketcher.Constraint("Vertical", 0),
    Sketcher.Constraint("Horizontal", 2),
    Sketcher.Constraint("Vertical", 4),
    Sketcher.Constraint("Vertical", 7),
    Sketcher.Constraint("Horizontal", 9),
    Sketcher.Constraint("Vertical", 11),
    Sketcher.Constraint("Equal", 1, 3),
    Sketcher.Constraint("Equal", 3, 5),
    Sketcher.Constraint("Equal", 5, 8),
    Sketcher.Constraint("Equal", 8, 10),
    Sketcher.Constraint("Equal", 10, 13),
    Sketcher.Constraint("Horizontal", 5, 3, 13, 3),
    Sketcher.Constraint("Horizontal", 6, 2, 11, 2),
    Sketcher.Constraint("Horizontal", 5, 1, 12, 2),
    Sketcher.Constraint("Radius", 1, Q("0.7 mm")),
    Sketcher.Constraint("DistanceX", 2, 1, 2, 2, Q("7.1 mm")),
    Sketcher.Constraint("DistanceX", 0, 2, -1, 1, Q("27 mm")),
    Sketcher.Constraint("DistanceY", 10, 3, 1, 1, Q("4 mm")),
    Sketcher.Constraint("DistanceX", 9, 2, 9, 1, Q("6.07 mm")),
    Sketcher.Constraint("DistanceY", -1, 1, 1, 3, Q("15.6 mm")),
    Sketcher.Constraint("DistanceY", 6, 2, 5, 1, Q("0.403301 mm")),
    Sketcher.Constraint("DistanceY", 0, 1, 0, 2, Q("1.748737 mm")),
])
sketch10.setExpression("Constraints[28]", "Params.sketch10_radius")
sketch10.setExpression("Constraints[29]", "Params.sketch10_width")
sketch10.setExpression("Constraints[32]", "Params.sketch10_width2")
pocket6 = body.newObject("PartDesign::Pocket", "Pocket005")
pocket6.Profile = sketch10
pocket6.Type = "ThroughAll"
pocket6.Reversed = True

sketch11 = body.newObject("Sketcher::SketchObject", "Sketch010")
sketch11.AttachmentSupport = (doc.getObject("XZ_Plane"), [""])
sketch11.MapMode = "FlatFace"
sketch11.addGeometry([
    Part.LineSegment(App.Vector(1.5, 27.15, 0), App.Vector(11.5, 27.15, 0)),
    Part.LineSegment(App.Vector(11.5, 27.15, 0), App.Vector(11.5, 32.65, 0)),
    Part.ArcOfCircle(Part.Circle(App.Vector(9, 32.65, 0), App.Vector(0, 0, 1), 2.5), math.radians(0), math.radians(90)),
    Part.LineSegment(App.Vector(9, 35.15, 0), App.Vector(4, 35.15, 0)),
    Part.ArcOfCircle(Part.Circle(App.Vector(4, 32.65, 0), App.Vector(0, 0, 1), 2.5), math.radians(90), math.radians(180)),
    Part.LineSegment(App.Vector(1.5, 32.65, 0), App.Vector(1.5, 27.15, 0)),
], False)
sketch11.addConstraint([
    Sketcher.Constraint("Coincident", 0, 2, 1, 1),
    Sketcher.Constraint("Tangent", 1, 2, 2, 1),
    Sketcher.Constraint("Tangent", 2, 2, 3, 1),
    Sketcher.Constraint("Tangent", 3, 2, 4, 1),
    Sketcher.Constraint("Tangent", 4, 2, 5, 1),
    Sketcher.Constraint("Coincident", 5, 2, 0, 1),
    Sketcher.Constraint("Horizontal", 0),
    Sketcher.Constraint("Vertical", 1),
    Sketcher.Constraint("Horizontal", 3),
    Sketcher.Constraint("Vertical", 5),
    Sketcher.Constraint("Equal", 2, 4),
    Sketcher.Constraint("Radius", 2, Q("2.5 mm")),
    Sketcher.Constraint("DistanceX", 0, 1, 0, 2, Q("10 mm")),
    Sketcher.Constraint("DistanceY", 1, 1, 1, 2, Q("5.5 mm")),
    Sketcher.Constraint("DistanceX", -1, 1, 2, 3, Q("9 mm")),
    Sketcher.Constraint("DistanceY", -1, 1, 2, 3, Q("32.65 mm")),
])
sketch11.setExpression("Constraints[11]", "Params.sketch11_radius")
sketch11.setExpression("Constraints[12]", "Params.sketch11_width")
sketch11.setExpression("Constraints[13]", "Params.sketch11_height")
pad5 = body.newObject("PartDesign::Pad", "Pad004")
pad5.Profile = sketch11
pad5.setExpression("Length", "Params.pad5_length")
pad5.Reversed = True

sketch12 = body.newObject("Sketcher::SketchObject", "Sketch011")
sketch12.AttachmentSupport = (doc.getObject("XZ_Plane"), [""])
sketch12.MapMode = "FlatFace"
sketch12.addGeometry(Part.Circle(App.Vector(6.5, 31.15, 0), App.Vector(0, 0, 1), 3), False)
sketch12.addConstraint([
    Sketcher.Constraint("Diameter", 0, Q("6 mm")),
    Sketcher.Constraint("DistanceX", -1, 1, 0, 3, Q("6.5 mm")),
    Sketcher.Constraint("DistanceY", -1, 1, 0, 3, Q("31.15 mm")),
])
sketch12.setExpression("Constraints[0]", "Params.sketch12_diameter")
pad6 = body.newObject("PartDesign::Pad", "Pad005")
pad6.Profile = sketch12
pad6.setExpression("Length", "Params.pad6_length")

sketch13 = body.newObject("Sketcher::SketchObject", "Sketch012")
sketch13.AttachmentSupport = (doc.getObject("XZ_Plane"), [""])
sketch13.MapMode = "FlatFace"
sketch13.AttachmentOffset = App.Placement(App.Vector(0, 0, 3), App.Rotation())
sketch13.addGeometry(Part.Circle(App.Vector(6.5, 31.15, 0), App.Vector(0, 0, 1), 1.6), False)
sketch13.addConstraint([
    Sketcher.Constraint("Diameter", 0, Q("3.2 mm")),
    Sketcher.Constraint("DistanceX", -1, 1, 0, 3, Q("6.5 mm")),
    Sketcher.Constraint("DistanceY", -1, 1, 0, 3, Q("31.15 mm")),
])
sketch13.setExpression("Constraints[0]", "Params.sketch13_diameter")
pocket7 = body.newObject("PartDesign::Pocket", "Pocket006")
pocket7.Profile = sketch13
pocket7.Type = "ThroughAll"

sketch14 = body.newObject("Sketcher::SketchObject", "Sketch013")
sketch14.AttachmentSupport = (doc.getObject("XZ_Plane"), [""])
sketch14.MapMode = "FlatFace"
sketch14.AttachmentOffset = App.Placement(App.Vector(0, 0, 3), App.Rotation())
sketch14.addGeometry(Part.Circle(App.Vector(6.5, 31.15, 0), App.Vector(0, 0, 1), 1.75), False)
sketch14.addConstraint([
    Sketcher.Constraint("Diameter", 0, Q("3.5 mm")),
    Sketcher.Constraint("DistanceX", -1, 1, 0, 3, Q("6.5 mm")),
    Sketcher.Constraint("DistanceY", -1, 1, 0, 3, Q("31.15 mm")),
])
sketch14.setExpression("Constraints[0]", "Params.sketch14_diameter")
pocket8 = body.newObject("PartDesign::Pocket", "Pocket007")
pocket8.Profile = sketch14
pocket8.setExpression("Length", "Params.pocket8_length")

doc.recompute()
